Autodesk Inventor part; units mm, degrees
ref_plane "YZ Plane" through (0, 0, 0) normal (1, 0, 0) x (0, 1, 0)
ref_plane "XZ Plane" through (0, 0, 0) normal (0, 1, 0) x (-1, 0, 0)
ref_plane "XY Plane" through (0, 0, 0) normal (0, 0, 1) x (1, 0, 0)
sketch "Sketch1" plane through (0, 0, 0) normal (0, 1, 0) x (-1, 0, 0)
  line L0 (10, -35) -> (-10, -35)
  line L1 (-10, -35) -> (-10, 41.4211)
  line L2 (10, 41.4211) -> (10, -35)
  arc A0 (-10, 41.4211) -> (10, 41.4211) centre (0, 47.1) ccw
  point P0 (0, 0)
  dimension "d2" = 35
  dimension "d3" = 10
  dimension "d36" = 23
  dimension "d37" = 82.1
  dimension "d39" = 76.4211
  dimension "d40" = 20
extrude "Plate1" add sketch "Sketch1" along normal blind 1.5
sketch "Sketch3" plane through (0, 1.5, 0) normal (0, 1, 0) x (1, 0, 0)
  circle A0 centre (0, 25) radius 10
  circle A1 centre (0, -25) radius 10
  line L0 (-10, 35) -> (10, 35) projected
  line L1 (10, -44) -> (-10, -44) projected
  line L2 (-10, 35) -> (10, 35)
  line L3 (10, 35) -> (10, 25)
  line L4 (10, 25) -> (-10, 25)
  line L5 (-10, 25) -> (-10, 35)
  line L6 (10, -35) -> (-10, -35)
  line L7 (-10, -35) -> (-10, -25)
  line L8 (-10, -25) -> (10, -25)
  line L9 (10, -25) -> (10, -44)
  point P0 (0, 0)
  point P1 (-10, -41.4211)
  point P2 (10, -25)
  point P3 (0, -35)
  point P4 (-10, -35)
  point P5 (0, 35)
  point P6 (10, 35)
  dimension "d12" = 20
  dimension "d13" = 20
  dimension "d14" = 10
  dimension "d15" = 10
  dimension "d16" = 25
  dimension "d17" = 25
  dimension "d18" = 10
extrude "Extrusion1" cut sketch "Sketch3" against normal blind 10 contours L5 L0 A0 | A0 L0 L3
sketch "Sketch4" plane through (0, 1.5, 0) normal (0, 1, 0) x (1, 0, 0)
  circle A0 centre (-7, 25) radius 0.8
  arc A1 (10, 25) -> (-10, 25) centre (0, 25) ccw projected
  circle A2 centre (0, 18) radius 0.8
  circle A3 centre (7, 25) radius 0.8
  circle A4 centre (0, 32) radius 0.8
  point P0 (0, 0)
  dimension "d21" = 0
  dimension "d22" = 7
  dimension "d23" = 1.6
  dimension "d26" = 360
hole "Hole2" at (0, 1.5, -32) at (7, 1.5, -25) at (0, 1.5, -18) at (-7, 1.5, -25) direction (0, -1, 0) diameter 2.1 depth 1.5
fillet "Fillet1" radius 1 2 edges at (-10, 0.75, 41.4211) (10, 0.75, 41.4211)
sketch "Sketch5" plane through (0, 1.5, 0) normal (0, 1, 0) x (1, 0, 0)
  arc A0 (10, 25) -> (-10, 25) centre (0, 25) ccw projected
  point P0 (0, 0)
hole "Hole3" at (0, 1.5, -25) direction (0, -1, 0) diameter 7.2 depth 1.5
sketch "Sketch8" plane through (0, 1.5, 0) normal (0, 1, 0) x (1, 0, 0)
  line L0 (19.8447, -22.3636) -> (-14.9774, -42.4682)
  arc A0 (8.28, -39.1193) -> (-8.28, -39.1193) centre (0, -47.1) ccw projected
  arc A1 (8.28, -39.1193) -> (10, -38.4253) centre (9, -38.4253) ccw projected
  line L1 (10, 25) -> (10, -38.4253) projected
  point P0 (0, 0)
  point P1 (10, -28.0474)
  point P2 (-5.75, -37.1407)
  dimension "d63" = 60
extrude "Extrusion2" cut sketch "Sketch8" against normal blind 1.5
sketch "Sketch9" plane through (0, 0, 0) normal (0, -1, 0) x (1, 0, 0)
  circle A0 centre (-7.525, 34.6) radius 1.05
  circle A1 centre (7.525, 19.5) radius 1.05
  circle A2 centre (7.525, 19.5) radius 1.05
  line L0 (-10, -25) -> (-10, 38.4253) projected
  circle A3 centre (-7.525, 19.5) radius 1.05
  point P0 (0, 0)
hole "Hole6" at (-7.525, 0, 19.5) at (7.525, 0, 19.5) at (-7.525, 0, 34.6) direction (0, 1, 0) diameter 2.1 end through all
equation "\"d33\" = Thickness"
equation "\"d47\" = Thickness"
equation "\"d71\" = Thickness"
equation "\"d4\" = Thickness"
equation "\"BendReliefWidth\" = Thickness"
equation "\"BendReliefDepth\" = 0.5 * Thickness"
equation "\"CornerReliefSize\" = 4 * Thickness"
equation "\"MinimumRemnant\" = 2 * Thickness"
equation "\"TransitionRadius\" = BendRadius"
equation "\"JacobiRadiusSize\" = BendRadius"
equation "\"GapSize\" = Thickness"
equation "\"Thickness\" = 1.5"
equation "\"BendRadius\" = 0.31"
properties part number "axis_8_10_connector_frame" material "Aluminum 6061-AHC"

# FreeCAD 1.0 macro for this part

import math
import FreeCAD as App
import Part
import Sketcher
Q = App.Units.Quantity


def edges_at(feature, points):
    """Names of the edges that pass closest to the given points."""
    edges = feature.Shape.Edges
    near = lambda p: min(range(len(edges)), key=lambda i: edges[i].distToShape(Part.Vertex(*p))[0])
    return sorted({f"Edge{near(p) + 1}" for p in points})

doc = App.newDocument("Part")
body = doc.addObject("PartDesign::Body", "Body")

# Sketch on XZ plane
sketch1 = body.newObject("Sketcher::SketchObject", "Sketch")
sketch1.AttachmentSupport = (doc.getObject("XZ_Plane"), [""])
sketch1.MapMode = "FlatFace"
sketch1.addGeometry([
    Part.LineSegment(App.Vector(10, -35, 0), App.Vector(-10, -35, 0)),
    Part.LineSegment(App.Vector(-10, -35, 0), App.Vector(-10, 41, 0)),
    Part.ArcOfCircle(Part.Circle(App.Vector(0, 47, 0), App.Vector(0, 0, 1), 11), math.radians(-150), math.radians(-30)),
    Part.LineSegment(App.Vector(10, 41, 0), App.Vector(10, -35, 0)),
], False)
sketch1.addConstraint([
    Sketcher.Constraint("Coincident", 0, 2, 1, 1),
    Sketcher.Constraint("Coincident", 1, 2, 2, 1),
    Sketcher.Constraint("Coincident", 2, 2, 3, 1),
    Sketcher.Constraint("Coincident", 3, 2, 0, 1),
    Sketcher.Constraint("Horizontal", 0),
    Sketcher.Constraint("Vertical", 1),
    Sketcher.Constraint("Vertical", 3),
    Sketcher.Constraint("Symmetric", 1, 2, 2, 2, -2),
    Sketcher.Constraint("Radius", 2, Q("11.5 mm")),
    Sketcher.Constraint("DistanceX", 0, 2, 0, 1, Q("20 mm")),
    Sketcher.Constraint("DistanceY", 0, 2, -1, 1, Q("35 mm")),
    Sketcher.Constraint("DistanceY", 0, 2, 2, 3, Q("82.1 mm")),
])
pad1 = body.newObject("PartDesign::Pad", "Pad")
pad1.Profile = sketch1
pad1.Length = 1.5
pad1.Reversed = True

# Sketch on XZ plane
sketch2 = body.newObject("Sketcher::SketchObject", "Sketch001")
sketch2.AttachmentSupport = (doc.getObject("XZ_Plane"), [""])
sketch2.MapMode = "FlatFace"
sketch2.AttachmentOffset = App.Placement(App.Vector(0, 0, -1.5), App.Rotation())
sketch2.addGeometry([
    Part.LineSegment(App.Vector(-10, -35, 0), App.Vector(-10, -25, 0)),  # 0
    Part.ArcOfCircle(Part.Circle(App.Vector(0, -25, 0), App.Vector(0, 0, 1), 10), math.radians(180), math.radians(270)),  # 1
    Part.LineSegment(App.Vector(0, -35, 0), App.Vector(-10, -35, 0)),  # 2
    Part.ArcOfCircle(Part.Circle(App.Vector(0, -25, 0), App.Vector(0, 0, 1), 10), math.radians(-90), math.radians(0)),  # 3
    Part.LineSegment(App.Vector(10, -25, 0), App.Vector(10, -35, 0)),  # 4
    Part.LineSegment(App.Vector(10, -35, 0), App.Vector(0, -35, 0)),  # 5
], False)
sketch2.addConstraint([
    Sketcher.Constraint("Tangent", 0, 2, 1, 1),
    Sketcher.Constraint("Tangent", 1, 2, 2, 1),
    Sketcher.Constraint("Coincident", 2, 2, 0, 1),
    Sketcher.Constraint("Tangent", 3, 2, 4, 1),
    Sketcher.Constraint("Coincident", 4, 2, 5, 1),
    Sketcher.Constraint("Tangent", 5, 2, 3, 1),
    Sketcher.Constraint("Vertical", 0),
    Sketcher.Constraint("Horizontal", 2),
    Sketcher.Constraint("Vertical", 4),
    Sketcher.Constraint("Horizontal", 5),
    Sketcher.Constraint("Coincident", 3, 3, 1, 3),
    Sketcher.Constraint("Equal", 1, 3),
    Sketcher.Constraint("PointOnObject", 1, 3, -2),
    Sketcher.Constraint("Radius", 1, Q("10 mm")),
    Sketcher.Constraint("DistanceY", 1, 3, -1, 1, Q("25 mm")),
])
pocket1 = body.newObject("PartDesign::Pocket", "Pocket")
pocket1.Profile = sketch2
pocket1.Length = 10
pocket1.Reversed = True

# Sketch on XZ plane
sketch3 = body.newObject("Sketcher::SketchObject", "Sketch002")
sketch3.AttachmentSupport = (doc.getObject("XZ_Plane"), [""])
sketch3.MapMode = "FlatFace"
sketch3.AttachmentOffset = App.Placement(App.Vector(0, 0, -1.5), App.Rotation())
sketch3.addGeometry([
    Part.Circle(App.Vector(0, -32, 0), App.Vector(0, 0, 1), 1.1),
    Part.Circle(App.Vector(7, -25, 0), App.Vector(0, 0, 1), 1.1),
    Part.Circle(App.Vector(0, -18, 0), App.Vector(0, 0, 1), 1.1),
    Part.Circle(App.Vector(-7, -25, 0), App.Vector(0, 0, 1), 1.1),
], False)
sketch3.addConstraint([
    Sketcher.Constraint("Equal", 0, 1),
    Sketcher.Constraint("Equal", 1, 2),
    Sketcher.Constraint("Equal", 2, 3),
    Sketcher.Constraint("Symmetric", 1, 3, 3, 3, -2),
    Sketcher.Constraint("PointOnObject", 0, 3, -2),
    Sketcher.Constraint("PointOnObject", 2, 3, -2),
    Sketcher.Constraint("Diameter", 0, Q("2.1 mm")),
    Sketcher.Constraint("DistanceY", 0, 3, -1, 1, Q("32 mm")),
    Sketcher.Constraint("DistanceX", -1, 1, 1, 3, Q("7 mm")),
    Sketcher.Constraint("DistanceY", 1, 3, -1, 1, Q("25 mm")),
    Sketcher.Constraint("DistanceY", 2, 3, -1, 1, Q("18 mm")),
])
doc.recompute()
hole = body.newObject("PartDesign::Hole", "Hole")
hole.Profile = sketch3
hole.ThreadType = "None"
hole.Diameter = 2.1
hole.DepthType = "Dimension"
hole.Depth = 1.5
hole.DrillPoint = "Flat"
hole.Reversed = True
doc.recompute()

fillet = body.newObject("PartDesign::Fillet", "Fillet")
fillet.Base = (hole, edges_at(hole, [(-10, 0.75, 41.421), (10, 0.75, 41.421)]))
fillet.Radius = 1

# Sketch on XZ plane
sketch4 = body.newObject("Sketcher::SketchObject", "Sketch003")
sketch4.AttachmentSupport = (doc.getObject("XZ_Plane"), [""])
sketch4.MapMode = "FlatFace"
sketch4.AttachmentOffset = App.Placement(App.Vector(0, 0, -1.5), App.Rotation())
sketch4.addGeometry(Part.Circle(App.Vector(0, -25, 0), App.Vector(0, 0, 1), 3.6), False)
sketch4.addConstraint([
    Sketcher.Constraint("PointOnObject", 0, 3, -2),
    Sketcher.Constraint("Diameter", 0, Q("7.2 mm")),
    Sketcher.Constraint("DistanceY", 0, 3, -1, 1, Q("25 mm")),
])
doc.recompute()
hole2 = body.newObject("PartDesign::Hole", "Hole001")
hole2.Profile = sketch4
hole2.ThreadType = "None"
hole2.Diameter = 7.2
hole2.DepthType = "Dimension"
hole2.Depth = 1.5
hole2.DrillPoint = "Flat"
hole2.Reversed = True

# Sketch on XZ plane
sketch5 = body.newObject("Sketcher::SketchObject", "Sketch004")
sketch5.AttachmentSupport = (doc.getObject("XZ_Plane"), [""])
sketch5.MapMode = "FlatFace"
sketch5.AttachmentOffset = App.Placement(App.Vector(0, 0, -1.5), App.Rotation())
sketch5.addGeometry([
    Part.LineSegment(App.Vector(10, 38.4, 0), App.Vector(10, 28, 0)),
    Part.LineSegment(App.Vector(10, 28, 0), App.Vector(-5.7, 37.1, 0)),
    Part.ArcOfCircle(Part.Circle(App.Vector(0, 47.1, 0), App.Vector(0, 0, 1), 11.5), math.radians(-120), math.radians(-44)),
    Part.ArcOfCircle(Part.Circle(App.Vector(9, 38.4, 0), App.Vector(0, 0, 1), 1), math.radians(0), math.radians(136)),
], False)
sketch5.addConstraint([
    Sketcher.Constraint("Coincident", 0, 2, 1, 1),
    Sketcher.Constraint("Tangent", 1, 2, 2, 1),
    Sketcher.Constraint("Tangent", 2, 2, 3, 2),
    Sketcher.Constraint("Tangent", 3, 1, 0, 1),
    Sketcher.Constraint("Vertical", 0),
    Sketcher.Constraint("PointOnObject", 2, 3, -2),
    Sketcher.Constraint("Radius", 3, Q("1 mm")),
    Sketcher.Constraint("Radius", 2, Q("11.5 mm")),
    Sketcher.Constraint("Angle", 1, Q("150 deg")),
    Sketcher.Constraint("DistanceX", -1, 1, 3, 3, Q("9 mm")),
    Sketcher.Constraint("DistanceY", -1, 1, 2, 3, Q("47.1 mm")),
])
pocket2 = body.newObject("PartDesign::Pocket", "Pocket001")
pocket2.Profile = sketch5
pocket2.Length = 1.5
pocket2.Reversed = True

# Sketch on XZ plane
sketch6 = body.newObject("Sketcher::SketchObject", "Sketch005")
sketch6.AttachmentSupport = (doc.getObject("XZ_Plane"), [""])
sketch6.MapMode = "FlatFace"
sketch6.addGeometry([
    Part.Circle(App.Vector(-7.5, 19.5, 0), App.Vector(0, 0, 1), 1.1),
    Part.Circle(App.Vector(7.5, 19.5, 0), App.Vector(0, 0, 1), 1.1),
    Part.Circle(App.Vector(-7.5, 34.6, 0), App.Vector(0, 0, 1), 1.1),
], False)
sketch6.addConstraint([
    Sketcher.Constraint("Equal", 0, 1),
    Sketcher.Constraint("Equal", 1, 2),
    Sketcher.Constraint("Symmetric", 0, 3, 1, 3, -2),
    Sketcher.Constraint("Vertical", 0, 3, 2, 3),
    Sketcher.Constraint("Diameter", 0, Q("2.1 mm")),
    Sketcher.Constraint("DistanceY", -1, 1, 0, 3, Q("19.5 mm")),
    Sketcher.Constraint("DistanceY", -1, 1, 2, 3, Q("34.6 mm")),
    Sketcher.Constraint("DistanceX", 0, 3, 1, 3, Q("15.05 mm")),
])
doc.recompute()
hole3 = body.newObject("PartDesign::Hole", "Hole002")
hole3.Profile = sketch6
hole3.ThreadType = "None"
hole3.Diameter = 2.1
hole3.DepthType = "ThroughAll"

doc.recompute()
